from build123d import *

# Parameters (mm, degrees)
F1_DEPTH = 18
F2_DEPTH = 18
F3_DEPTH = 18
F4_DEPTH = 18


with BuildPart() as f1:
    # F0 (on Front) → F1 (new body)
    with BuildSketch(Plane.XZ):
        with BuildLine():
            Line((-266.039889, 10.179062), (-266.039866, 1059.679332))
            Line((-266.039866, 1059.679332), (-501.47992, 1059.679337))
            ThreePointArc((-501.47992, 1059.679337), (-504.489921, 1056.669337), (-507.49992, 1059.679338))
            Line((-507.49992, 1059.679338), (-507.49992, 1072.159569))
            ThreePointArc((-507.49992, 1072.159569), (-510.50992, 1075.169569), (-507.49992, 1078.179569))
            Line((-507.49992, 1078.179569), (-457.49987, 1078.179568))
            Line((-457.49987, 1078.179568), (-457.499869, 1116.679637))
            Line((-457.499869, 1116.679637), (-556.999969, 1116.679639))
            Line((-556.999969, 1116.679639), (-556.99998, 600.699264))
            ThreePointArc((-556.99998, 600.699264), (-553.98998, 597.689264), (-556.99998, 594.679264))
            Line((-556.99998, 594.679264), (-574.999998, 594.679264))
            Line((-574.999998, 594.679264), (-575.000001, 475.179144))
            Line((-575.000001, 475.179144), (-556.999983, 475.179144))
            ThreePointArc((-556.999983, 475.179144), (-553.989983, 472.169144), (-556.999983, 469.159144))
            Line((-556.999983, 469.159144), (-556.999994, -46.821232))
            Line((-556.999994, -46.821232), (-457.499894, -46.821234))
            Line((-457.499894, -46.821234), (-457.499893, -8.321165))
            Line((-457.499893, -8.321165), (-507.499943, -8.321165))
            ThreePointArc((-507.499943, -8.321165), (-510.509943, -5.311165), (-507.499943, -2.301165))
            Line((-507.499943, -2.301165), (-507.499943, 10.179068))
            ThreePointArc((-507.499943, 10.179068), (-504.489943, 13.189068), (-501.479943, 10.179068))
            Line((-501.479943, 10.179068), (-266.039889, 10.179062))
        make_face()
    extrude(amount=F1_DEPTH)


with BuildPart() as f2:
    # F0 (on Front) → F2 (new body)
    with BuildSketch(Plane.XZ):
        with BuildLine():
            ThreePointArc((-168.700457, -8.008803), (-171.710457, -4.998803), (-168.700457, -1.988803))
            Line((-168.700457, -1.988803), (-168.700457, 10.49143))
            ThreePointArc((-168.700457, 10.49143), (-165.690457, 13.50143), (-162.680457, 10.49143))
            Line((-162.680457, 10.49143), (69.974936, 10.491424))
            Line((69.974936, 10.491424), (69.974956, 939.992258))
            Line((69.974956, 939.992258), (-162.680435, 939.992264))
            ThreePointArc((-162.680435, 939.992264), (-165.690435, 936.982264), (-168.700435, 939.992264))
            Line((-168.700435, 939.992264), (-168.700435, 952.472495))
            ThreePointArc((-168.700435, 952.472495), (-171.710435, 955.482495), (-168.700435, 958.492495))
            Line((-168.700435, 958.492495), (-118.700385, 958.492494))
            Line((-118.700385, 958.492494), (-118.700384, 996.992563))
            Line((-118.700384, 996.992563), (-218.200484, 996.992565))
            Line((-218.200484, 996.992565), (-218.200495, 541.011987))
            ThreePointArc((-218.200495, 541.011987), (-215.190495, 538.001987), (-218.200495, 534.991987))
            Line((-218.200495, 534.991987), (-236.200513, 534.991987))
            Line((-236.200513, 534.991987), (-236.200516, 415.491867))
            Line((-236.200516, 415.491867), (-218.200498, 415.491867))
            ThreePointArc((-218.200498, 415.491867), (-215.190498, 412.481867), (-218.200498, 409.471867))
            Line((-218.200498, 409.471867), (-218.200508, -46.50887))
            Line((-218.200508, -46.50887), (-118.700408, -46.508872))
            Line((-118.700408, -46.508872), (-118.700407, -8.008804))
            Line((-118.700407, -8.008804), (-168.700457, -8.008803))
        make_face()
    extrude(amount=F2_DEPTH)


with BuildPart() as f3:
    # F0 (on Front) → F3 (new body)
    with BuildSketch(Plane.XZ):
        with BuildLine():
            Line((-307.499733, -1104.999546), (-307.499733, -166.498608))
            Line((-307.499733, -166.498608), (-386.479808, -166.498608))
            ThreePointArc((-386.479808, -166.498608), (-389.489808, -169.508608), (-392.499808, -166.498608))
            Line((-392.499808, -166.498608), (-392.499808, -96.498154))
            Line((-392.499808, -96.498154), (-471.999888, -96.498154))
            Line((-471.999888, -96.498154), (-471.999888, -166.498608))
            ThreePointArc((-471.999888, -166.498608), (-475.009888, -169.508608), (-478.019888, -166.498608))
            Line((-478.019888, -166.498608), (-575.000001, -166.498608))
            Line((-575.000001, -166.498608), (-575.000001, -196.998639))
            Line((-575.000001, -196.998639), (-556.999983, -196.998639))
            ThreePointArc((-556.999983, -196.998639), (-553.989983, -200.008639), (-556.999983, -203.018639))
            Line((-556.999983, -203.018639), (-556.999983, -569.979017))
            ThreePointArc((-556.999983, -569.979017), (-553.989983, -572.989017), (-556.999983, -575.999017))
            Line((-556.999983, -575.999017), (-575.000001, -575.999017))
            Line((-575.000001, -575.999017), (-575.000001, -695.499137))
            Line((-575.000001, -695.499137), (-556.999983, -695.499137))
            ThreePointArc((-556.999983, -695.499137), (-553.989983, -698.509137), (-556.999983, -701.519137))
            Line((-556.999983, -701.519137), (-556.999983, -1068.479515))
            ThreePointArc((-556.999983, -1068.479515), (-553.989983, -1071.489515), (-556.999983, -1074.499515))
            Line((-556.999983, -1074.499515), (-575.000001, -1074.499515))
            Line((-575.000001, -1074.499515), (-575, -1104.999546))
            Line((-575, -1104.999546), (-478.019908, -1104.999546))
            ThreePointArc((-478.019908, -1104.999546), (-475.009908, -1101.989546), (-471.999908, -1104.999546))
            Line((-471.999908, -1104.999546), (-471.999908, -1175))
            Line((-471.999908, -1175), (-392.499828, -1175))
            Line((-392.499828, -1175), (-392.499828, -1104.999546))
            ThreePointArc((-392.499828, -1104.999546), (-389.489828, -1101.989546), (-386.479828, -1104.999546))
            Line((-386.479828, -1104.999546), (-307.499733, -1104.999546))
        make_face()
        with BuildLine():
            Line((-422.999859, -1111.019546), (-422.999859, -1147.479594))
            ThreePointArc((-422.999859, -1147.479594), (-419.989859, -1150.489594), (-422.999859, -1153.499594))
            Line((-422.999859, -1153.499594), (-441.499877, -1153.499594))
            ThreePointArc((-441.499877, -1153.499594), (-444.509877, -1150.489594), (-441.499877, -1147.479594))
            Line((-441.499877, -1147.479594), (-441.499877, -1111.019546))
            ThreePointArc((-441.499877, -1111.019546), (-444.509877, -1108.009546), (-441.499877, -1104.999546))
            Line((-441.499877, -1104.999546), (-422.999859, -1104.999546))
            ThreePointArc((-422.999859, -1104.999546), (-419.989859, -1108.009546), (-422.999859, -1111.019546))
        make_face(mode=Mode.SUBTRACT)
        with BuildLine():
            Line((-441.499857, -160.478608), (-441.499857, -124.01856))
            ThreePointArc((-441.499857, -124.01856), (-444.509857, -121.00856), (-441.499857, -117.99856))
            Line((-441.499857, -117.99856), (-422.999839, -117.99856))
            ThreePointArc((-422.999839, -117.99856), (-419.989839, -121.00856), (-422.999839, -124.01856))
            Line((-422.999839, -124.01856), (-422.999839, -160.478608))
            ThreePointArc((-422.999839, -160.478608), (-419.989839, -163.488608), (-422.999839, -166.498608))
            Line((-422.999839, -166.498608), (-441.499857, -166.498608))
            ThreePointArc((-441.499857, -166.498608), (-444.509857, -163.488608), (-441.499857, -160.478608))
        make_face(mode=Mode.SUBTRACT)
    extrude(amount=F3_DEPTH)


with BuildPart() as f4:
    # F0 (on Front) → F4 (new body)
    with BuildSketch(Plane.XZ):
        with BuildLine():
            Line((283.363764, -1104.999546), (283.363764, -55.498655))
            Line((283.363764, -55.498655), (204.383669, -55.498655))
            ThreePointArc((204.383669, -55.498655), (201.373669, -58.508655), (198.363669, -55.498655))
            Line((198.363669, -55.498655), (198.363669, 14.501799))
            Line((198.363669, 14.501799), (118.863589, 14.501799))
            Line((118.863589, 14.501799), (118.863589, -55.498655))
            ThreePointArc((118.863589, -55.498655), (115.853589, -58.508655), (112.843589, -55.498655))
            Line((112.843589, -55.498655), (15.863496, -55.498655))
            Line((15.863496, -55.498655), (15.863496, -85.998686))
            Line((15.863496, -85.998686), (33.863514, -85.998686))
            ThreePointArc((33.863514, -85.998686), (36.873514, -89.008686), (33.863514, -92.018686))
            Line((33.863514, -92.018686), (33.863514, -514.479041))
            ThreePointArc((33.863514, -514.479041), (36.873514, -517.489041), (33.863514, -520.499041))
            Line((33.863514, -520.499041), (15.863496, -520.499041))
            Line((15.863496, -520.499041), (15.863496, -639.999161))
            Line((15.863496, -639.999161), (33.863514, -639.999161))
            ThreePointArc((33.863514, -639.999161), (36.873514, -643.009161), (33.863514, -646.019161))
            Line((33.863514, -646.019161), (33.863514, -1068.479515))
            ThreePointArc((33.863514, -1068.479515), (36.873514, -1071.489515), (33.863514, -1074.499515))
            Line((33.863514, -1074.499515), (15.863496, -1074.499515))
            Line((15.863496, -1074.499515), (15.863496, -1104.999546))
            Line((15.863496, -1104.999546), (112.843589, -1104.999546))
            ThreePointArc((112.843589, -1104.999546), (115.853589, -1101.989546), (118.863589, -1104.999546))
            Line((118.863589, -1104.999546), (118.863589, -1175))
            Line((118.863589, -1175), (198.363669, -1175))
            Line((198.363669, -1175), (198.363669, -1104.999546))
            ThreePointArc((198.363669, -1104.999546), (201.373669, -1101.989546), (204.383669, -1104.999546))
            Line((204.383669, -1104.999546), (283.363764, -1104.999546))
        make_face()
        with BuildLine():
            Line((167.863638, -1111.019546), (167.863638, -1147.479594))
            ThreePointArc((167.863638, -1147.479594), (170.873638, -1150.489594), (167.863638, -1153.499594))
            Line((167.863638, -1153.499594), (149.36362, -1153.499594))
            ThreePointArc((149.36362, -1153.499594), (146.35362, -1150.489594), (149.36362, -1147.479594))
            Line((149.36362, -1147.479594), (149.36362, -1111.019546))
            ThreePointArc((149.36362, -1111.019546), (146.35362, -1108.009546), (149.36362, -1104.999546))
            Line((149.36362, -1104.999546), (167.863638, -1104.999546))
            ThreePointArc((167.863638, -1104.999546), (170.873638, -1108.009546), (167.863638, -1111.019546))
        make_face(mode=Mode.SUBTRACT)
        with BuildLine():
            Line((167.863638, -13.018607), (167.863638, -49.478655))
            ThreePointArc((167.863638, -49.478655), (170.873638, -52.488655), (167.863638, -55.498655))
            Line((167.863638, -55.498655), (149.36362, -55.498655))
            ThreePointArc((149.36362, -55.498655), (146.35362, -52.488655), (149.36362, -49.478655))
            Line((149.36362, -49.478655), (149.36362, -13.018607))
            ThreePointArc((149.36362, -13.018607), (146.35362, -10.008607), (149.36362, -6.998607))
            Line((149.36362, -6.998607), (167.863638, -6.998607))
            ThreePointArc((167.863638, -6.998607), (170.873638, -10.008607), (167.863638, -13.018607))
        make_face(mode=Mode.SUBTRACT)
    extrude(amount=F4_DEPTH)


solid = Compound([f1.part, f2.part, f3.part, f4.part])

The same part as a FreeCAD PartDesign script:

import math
import FreeCAD as App
import Part
import Sketcher
from FreeCAD import Vector
Q = App.Units.Quantity

doc = App.newDocument("Part")
body = doc.addObject("PartDesign::Body", "Body")

# Sketch on XZ plane
sketch1 = doc.addObject("Sketcher::SketchObject", "Sketch")
body.addObject(sketch1)
sketch1.AttachmentSupport = (doc.XZ_Plane, [""])
sketch1.MapMode = "FlatFace"
sketch1.addGeometry([
    Part.LineSegment(Vector(-266.039889, 10.179062, 0), Vector(-266.039866, 1059.679332, 0)),  # 0
    Part.LineSegment(Vector(-266.039866, 1059.679332, 0), Vector(-501.47992, 1059.679337, 0)),  # 1
    Part.ArcOfCircle(Part.Circle(Vector(-504.48992, 1059.679337, 0), Vector(0, 0, 1), 3.01), math.radians(179.999981), math.radians(360)),  # 2
    Part.LineSegment(Vector(-507.49992, 1059.679338, 0), Vector(-507.49992, 1072.159569, 0)),  # 3
    Part.ArcOfCircle(Part.Circle(Vector(-507.49992, 1075.169569, 0), Vector(0, 0, 1), 3.01), math.radians(90), math.radians(270)),  # 4
    Part.LineSegment(Vector(-507.49992, 1078.179569, 0), Vector(-457.49987, 1078.179568, 0)),  # 5
    Part.LineSegment(Vector(-457.49987, 1078.179568, 0), Vector(-457.499869, 1116.679637, 0)),  # 6
    Part.LineSegment(Vector(-457.499869, 1116.679637, 0), Vector(-556.999969, 1116.679639, 0)),  # 7
    Part.LineSegment(Vector(-556.999969, 1116.679639, 0), Vector(-556.99998, 600.699264, 0)),  # 8
    Part.ArcOfCircle(Part.Circle(Vector(-556.99998, 597.689264, 0), Vector(0, 0, 1), 3.01), math.radians(-90), math.radians(90)),  # 9
    Part.LineSegment(Vector(-556.99998, 594.679264, 0), Vector(-574.999998, 594.679264, 0)),  # 10
    Part.LineSegment(Vector(-574.999998, 594.679264, 0), Vector(-575.000001, 475.179144, 0)),  # 11
    Part.LineSegment(Vector(-575.000001, 475.179144, 0), Vector(-556.999983, 475.179144, 0)),  # 12
    Part.ArcOfCircle(Part.Circle(Vector(-556.999983, 472.169144, 0), Vector(0, 0, 1), 3.01), math.radians(-90), math.radians(90)),  # 13
    Part.LineSegment(Vector(-556.999983, 469.159144, 0), Vector(-556.999994, -46.821232, 0)),  # 14
    Part.LineSegment(Vector(-556.999994, -46.821232, 0), Vector(-457.499894, -46.821234, 0)),  # 15
    Part.LineSegment(Vector(-457.499894, -46.821234, 0), Vector(-457.499893, -8.321165, 0)),  # 16
    Part.LineSegment(Vector(-457.499893, -8.321165, 0), Vector(-507.499943, -8.321165, 0)),  # 17
    Part.ArcOfCircle(Part.Circle(Vector(-507.499943, -5.311165, 0), Vector(0, 0, 1), 3.01), math.radians(90), math.radians(270)),  # 18
    Part.LineSegment(Vector(-507.499943, -2.301165, 0), Vector(-507.499943, 10.179068, 0)),  # 19
    Part.ArcOfCircle(Part.Circle(Vector(-504.489943, 10.179068, 0), Vector(0, 0, 1), 3.01), math.radians(0), math.radians(180)),  # 20
    Part.LineSegment(Vector(-501.479943, 10.179068, 0), Vector(-266.039889, 10.179062, 0)),  # 21
], False)
sketch1.addConstraint([
    Sketcher.Constraint("Coincident", 0, 2, 1, 1),
    Sketcher.Constraint("Coincident", 1, 2, 2, 2),
    Sketcher.Constraint("Coincident", 2, 1, 3, 1),
    Sketcher.Constraint("Coincident", 3, 2, 4, 2),
    Sketcher.Constraint("Coincident", 4, 1, 5, 1),
    Sketcher.Constraint("Coincident", 5, 2, 6, 1),
    Sketcher.Constraint("Coincident", 6, 2, 7, 1),
    Sketcher.Constraint("Coincident", 7, 2, 8, 1),
    Sketcher.Constraint("Coincident", 8, 2, 9, 2),
    Sketcher.Constraint("Coincident", 9, 1, 10, 1),
    Sketcher.Constraint("Coincident", 10, 2, 11, 1),
    Sketcher.Constraint("Coincident", 11, 2, 12, 1),
    Sketcher.Constraint("Coincident", 12, 2, 13, 2),
    Sketcher.Constraint("Coincident", 13, 1, 14, 1),
    Sketcher.Constraint("Coincident", 14, 2, 15, 1),
    Sketcher.Constraint("Coincident", 15, 2, 16, 1),
    Sketcher.Constraint("Coincident", 16, 2, 17, 1),
    Sketcher.Constraint("Coincident", 17, 2, 18, 2),
    Sketcher.Constraint("Coincident", 18, 1, 19, 1),
    Sketcher.Constraint("Coincident", 19, 2, 20, 2),
    Sketcher.Constraint("Coincident", 20, 1, 21, 1),
    Sketcher.Constraint("Coincident", 21, 2, 0, 1),
    Sketcher.Constraint("Vertical", 3),
    Sketcher.Constraint("Horizontal", 5),
    Sketcher.Constraint("Vertical", 6),
    Sketcher.Constraint("Horizontal", 7),
    Sketcher.Constraint("Horizontal", 10),
    Sketcher.Constraint("Horizontal", 12),
    Sketcher.Constraint("Horizontal", 15),
    Sketcher.Constraint("Vertical", 16),
    Sketcher.Constraint("Horizontal", 17),
    Sketcher.Constraint("Vertical", 19),
    Sketcher.Constraint("Radius", 2, Q("3.01 mm")),
    Sketcher.Constraint("Radius", 4, Q("3.01 mm")),
    Sketcher.Constraint("Radius", 9, Q("3.01 mm")),
    Sketcher.Constraint("Radius", 13, Q("3.01 mm")),
    Sketcher.Constraint("Radius", 18, Q("3.01 mm")),
    Sketcher.Constraint("Radius", 20, Q("3.01 mm")),
    Sketcher.Constraint("DistanceX", 10, 2, -1, 1, Q("574.999998 mm")),
    Sketcher.Constraint("DistanceX", 11, 2, -1, 1, Q("575.000001 mm")),
    Sketcher.Constraint("DistanceX", 4, 3, 2, 3, Q("3.01 mm")),
    Sketcher.Constraint("DistanceX", 18, 3, 20, 3, Q("3.01 mm")),
    Sketcher.Constraint("DistanceX", 4, 1, 2, 3, Q("3.01 mm")),
    Sketcher.Constraint("DistanceX", 17, 2, 20, 3, Q("3.01 mm")),
    Sketcher.Constraint("DistanceX", 7, 2, 7, 1, Q("99.5001 mm")),
    Sketcher.Constraint("DistanceX", 15, 1, 15, 2, Q("99.5001 mm")),
    Sketcher.Constraint("DistanceX", 5, 1, 5, 2, Q("50.00005 mm")),
    Sketcher.Constraint("DistanceX", 17, 2, 17, 1, Q("50.00005 mm")),
    Sketcher.Constraint("DistanceY", 3, 1, 3, 2, Q("12.480231 mm")),
    Sketcher.Constraint("DistanceY", 6, 1, 6, 2, Q("38.500069 mm")),
    Sketcher.Constraint("DistanceY", 16, 1, 16, 2, Q("38.500069 mm")),
    Sketcher.Constraint("DistanceY", 18, 3, 2, 3, Q("1064.990502 mm")),
    Sketcher.Constraint("DistanceY", 20, 3, 4, 3, Q("1064.990501 mm")),
    Sketcher.Constraint("DistanceY", 1, 2, 6, 2, Q("57.0003 mm")),
    Sketcher.Constraint("DistanceY", 2, 3, 7, 2, Q("57.000302 mm")),
    Sketcher.Constraint("Distance", 0, Q("1049.50027 mm")),
    Sketcher.Constraint("Distance", 11, Q("119.50012 mm")),
    Sketcher.Constraint("DistanceX", 10, 2, 10, 1, Q("18.000018 mm")),
    Sketcher.Constraint("DistanceX", 12, 1, 12, 2, Q("18.000018 mm")),
    Sketcher.Constraint("DistanceY", 19, 1, 19, 2, Q("12.480233 mm")),
    Sketcher.Constraint("DistanceX", 2, 3, -1, 1, Q("504.48992 mm")),
    Sketcher.Constraint("DistanceY", -1, 1, 4, 3, Q("1075.169569 mm")),
    Sketcher.Constraint("DistanceX", 9, 3, -1, 1, Q("556.99998 mm")),
    Sketcher.Constraint("DistanceY", -1, 1, 0, 2, Q("1059.679332 mm")),
    Sketcher.Constraint("DistanceX", 8, 2, -1, 1, Q("556.99998 mm")),
    Sketcher.Constraint("DistanceX", 21, 2, -1, 1, Q("266.039889 mm")),
    Sketcher.Constraint("DistanceX", 13, 3, 18, 3, Q("49.50004 mm")),
    Sketcher.Constraint("DistanceY", 18, 3, 13, 3, Q("477.480309 mm")),
    Sketcher.Constraint("DistanceX", 13, 1, 15, 2, Q("99.500089 mm")),
    Sketcher.Constraint("Distance", 1, Q("235.440054 mm")),
    Sketcher.Constraint("Distance", 21, Q("235.440054 mm")),
    Sketcher.Constraint("DistanceY", -1, 1, 20, 1, Q("10.179068 mm")),
])
pad1 = doc.addObject("PartDesign::Pad", "Pad")
body.addObject(pad1)
pad1.Profile = sketch1
pad1.Length = 18
body2 = doc.addObject("PartDesign::Body", "Body001")

# Sketch on XZ plane
sketch2 = doc.addObject("Sketcher::SketchObject", "Sketch001")
body2.addObject(sketch2)
sketch2.AttachmentSupport = (doc.getObject("XZ_Plane001"), [""])
sketch2.MapMode = "FlatFace"
sketch2.addGeometry([
    Part.ArcOfCircle(Part.Circle(Vector(-168.700457, -4.998803, 0), Vector(0, 0, 1), 3.01), math.radians(90), math.radians(270)),  # 0
    Part.LineSegment(Vector(-168.700457, -1.988803, 0), Vector(-168.700457, 10.49143, 0)),  # 1
    Part.ArcOfCircle(Part.Circle(Vector(-165.690457, 10.49143, 0), Vector(0, 0, 1), 3.01), math.radians(0), math.radians(180)),  # 2
    Part.LineSegment(Vector(-162.680457, 10.49143, 0), Vector(69.974936, 10.491424, 0)),  # 3
    Part.LineSegment(Vector(69.974936, 10.491424, 0), Vector(69.974956, 939.992258, 0)),  # 4
    Part.LineSegment(Vector(69.974956, 939.992258, 0), Vector(-162.680435, 939.992264, 0)),  # 5
    Part.ArcOfCircle(Part.Circle(Vector(-165.690435, 939.992264, 0), Vector(0, 0, 1), 3.01), math.radians(180), math.radians(360)),  # 6
    Part.LineSegment(Vector(-168.700435, 939.992264, 0), Vector(-168.700435, 952.472495, 0)),  # 7
    Part.ArcOfCircle(Part.Circle(Vector(-168.700435, 955.482495, 0), Vector(0, 0, 1), 3.01), math.radians(90), math.radians(270)),  # 8
    Part.LineSegment(Vector(-168.700435, 958.492495, 0), Vector(-118.700385, 958.492494, 0)),  # 9
    Part.LineSegment(Vector(-118.700385, 958.492494, 0), Vector(-118.700384, 996.992563, 0)),  # 10
    Part.LineSegment(Vector(-118.700384, 996.992563, 0), Vector(-218.200484, 996.992565, 0)),  # 11
    Part.LineSegment(Vector(-218.200484, 996.992565, 0), Vector(-218.200495, 541.011987, 0)),  # 12
    Part.ArcOfCircle(Part.Circle(Vector(-218.200495, 538.001987, 0), Vector(0, 0, 1), 3.01), math.radians(-90), math.radians(90)),  # 13
    Part.LineSegment(Vector(-218.200495, 534.991987, 0), Vector(-236.200513, 534.991987, 0)),  # 14
    Part.LineSegment(Vector(-236.200513, 534.991987, 0), Vector(-236.200516, 415.491867, 0)),  # 15
    Part.LineSegment(Vector(-236.200516, 415.491867, 0), Vector(-218.200498, 415.491867, 0)),  # 16
    Part.ArcOfCircle(Part.Circle(Vector(-218.200498, 412.481867, 0), Vector(0, 0, 1), 3.01), math.radians(-90), math.radians(90)),  # 17
    Part.LineSegment(Vector(-218.200498, 409.471867, 0), Vector(-218.200508, -46.50887, 0)),  # 18
    Part.LineSegment(Vector(-218.200508, -46.50887, 0), Vector(-118.700408, -46.508872, 0)),  # 19
    Part.LineSegment(Vector(-118.700408, -46.508872, 0), Vector(-118.700407, -8.008804, 0)),  # 20
    Part.LineSegment(Vector(-118.700407, -8.008804, 0), Vector(-168.700457, -8.008803, 0)),  # 21
], False)
sketch2.addConstraint([
    Sketcher.Constraint("Coincident", 0, 1, 1, 1),
    Sketcher.Constraint("Tangent", 1, 2, 2, 2),
    Sketcher.Constraint("Coincident", 2, 1, 3, 1),
    Sketcher.Constraint("Coincident", 3, 2, 4, 1),
    Sketcher.Constraint("Coincident", 4, 2, 5, 1),
    Sketcher.Constraint("Coincident", 5, 2, 6, 2),
    Sketcher.Constraint("Tangent", 6, 1, 7, 1),
    Sketcher.Constraint("Coincident", 7, 2, 8, 2),
    Sketcher.Constraint("Tangent", 8, 1, 9, 1),
    Sketcher.Constraint("Coincident", 9, 2, 10, 1),
    Sketcher.Constraint("Coincident", 10, 2, 11, 1),
    Sketcher.Constraint("Coincident", 11, 2, 12, 1),
    Sketcher.Constraint("Coincident", 12, 2, 13, 2),
    Sketcher.Constraint("Tangent", 13, 1, 14, 1),
    Sketcher.Constraint("Coincident", 14, 2, 15, 1),
    Sketcher.Constraint("Coincident", 15, 2, 16, 1),
    Sketcher.Constraint("Tangent", 16, 2, 17, 2),
    Sketcher.Constraint("Coincident", 17, 1, 18, 1),
    Sketcher.Constraint("Coincident", 18, 2, 19, 1),
    Sketcher.Constraint("Coincident", 19, 2, 20, 1),
    Sketcher.Constraint("Coincident", 20, 2, 21, 1),
    Sketcher.Constraint("Tangent", 21, 2, 0, 2),
    Sketcher.Constraint("Vertical", 1),
    Sketcher.Constraint("Vertical", 7),
    Sketcher.Constraint("Horizontal", 9),
    Sketcher.Constraint("Vertical", 10),
    Sketcher.Constraint("Horizontal", 11),
    Sketcher.Constraint("Horizontal", 14),
    Sketcher.Constraint("Horizontal", 16),
    Sketcher.Constraint("Horizontal", 19),
    Sketcher.Constraint("Vertical", 20),
    Sketcher.Constraint("Horizontal", 21),
    Sketcher.Constraint("Equal", 0, 2),
    Sketcher.Constraint("Equal", 2, 6),
    Sketcher.Constraint("Equal", 6, 8),
    Sketcher.Constraint("Equal", 8, 13),
    Sketcher.Constraint("Equal", 13, 17),
    Sketcher.Constraint("Perpendicular", 3, 4),
    Sketcher.Constraint("Perpendicular", 4, 5),
    Sketcher.Constraint("Perpendicular", 5, 12),
    Sketcher.Constraint("Parallel", 12, 15),
    Sketcher.Constraint("Parallel", 15, 18),
    Sketcher.Constraint("Horizontal", 1, 2, 2, 1),
    Sketcher.Constraint("Horizontal", 6, 3, 5, 2),
    Sketcher.Constraint("Vertical", 8, 3, 6, 1),
    Sketcher.Constraint("Vertical", 13, 3, 12, 2),
    Sketcher.Constraint("Vertical", 16, 2, 17, 1),
    Sketcher.Constraint("Vertical", 1, 2, 21, 2),
    Sketcher.Constraint("Equal", 14, 16),
    Sketcher.Constraint("Equal", 11, 19),
    Sketcher.Constraint("Equal", 9, 21),
    Sketcher.Constraint("Equal", 1, 7),
    Sketcher.Constraint("Equal", 10, 20),
    Sketcher.Constraint("Equal", 3, 5),
    Sketcher.Constraint("Radius", 0, Q("3.01 mm")),
    Sketcher.Constraint("DistanceX", 11, 2, 11, 1, Q("99.5001 mm")),
    Sketcher.Constraint("DistanceX", 9, 1, 9, 2, Q("50.00005 mm")),
    Sketcher.Constraint("DistanceX", 14, 2, 14, 1, Q("18.000018 mm")),
    Sketcher.Constraint("DistanceY", 7, 1, 7, 2, Q("12.480231 mm")),
    Sketcher.Constraint("DistanceY", 10, 1, 10, 2, Q("38.500069 mm")),
    Sketcher.Constraint("DistanceX", 17, 3, -1, 1, Q("218.200498 mm")),
    Sketcher.Constraint("Distance", 5, Q("232.655391 mm")),
    Sketcher.Constraint("Distance", 12, Q("455.980578 mm")),
    Sketcher.Constraint("Distance", 15, Q("119.50012 mm")),
    Sketcher.Constraint("DistanceY", -1, 1, 2, 3, Q("10.49143 mm")),
    Sketcher.Constraint("DistanceY", -1, 1, 4, 2, Q("939.992258 mm")),
])
pad2 = doc.addObject("PartDesign::Pad", "Pad001")
body2.addObject(pad2)
pad2.Profile = sketch2
pad2.Length = 18
body3 = doc.addObject("PartDesign::Body", "Body002")

# Sketch on XZ plane
sketch3 = doc.addObject("Sketcher::SketchObject", "Sketch002")
body3.addObject(sketch3)
sketch3.AttachmentSupport = (doc.getObject("XZ_Plane002"), [""])
sketch3.MapMode = "FlatFace"
sketch3.addGeometry([
    Part.LineSegment(Vector(-307.499733, -1104.999546, 0), Vector(-307.499733, -166.498608, 0)),  # 0
    Part.LineSegment(Vector(-307.499733, -166.498608, 0), Vector(-386.479808, -166.498608, 0)),  # 1
    Part.ArcOfCircle(Part.Circle(Vector(-389.489808, -166.498608, 0), Vector(0, 0, 1), 3.01), math.radians(180), math.radians(360)),  # 2
    Part.LineSegment(Vector(-392.499808, -166.498608, 0), Vector(-392.499808, -96.498154, 0)),  # 3
    Part.LineSegment(Vector(-392.499808, -96.498154, 0), Vector(-471.999888, -96.498154, 0)),  # 4
    Part.LineSegment(Vector(-471.999888, -96.498154, 0), Vector(-471.999888, -166.498608, 0)),  # 5
    Part.ArcOfCircle(Part.Circle(Vector(-475.009888, -166.498608, 0), Vector(0, 0, 1), 3.01), math.radians(180), math.radians(360)),  # 6
    Part.LineSegment(Vector(-478.019888, -166.498608, 0), Vector(-575.000001, -166.498608, 0)),  # 7
    Part.LineSegment(Vector(-575.000001, -166.498608, 0), Vector(-575.000001, -196.998639, 0)),  # 8
    Part.LineSegment(Vector(-575.000001, -196.998639, 0), Vector(-556.999983, -196.998639, 0)),  # 9
    Part.ArcOfCircle(Part.Circle(Vector(-556.999983, -200.008639, 0), Vector(0, 0, 1), 3.01), math.radians(-90), math.radians(90)),  # 10
    Part.LineSegment(Vector(-556.999983, -203.018639, 0), Vector(-556.999983, -569.979017, 0)),  # 11
    Part.ArcOfCircle(Part.Circle(Vector(-556.999983, -572.989017, 0), Vector(0, 0, 1), 3.01), math.radians(-90), math.radians(90)),  # 12
    Part.LineSegment(Vector(-556.999983, -575.999017, 0), Vector(-575.000001, -575.999017, 0)),  # 13
    Part.LineSegment(Vector(-575.000001, -575.999017, 0), Vector(-575.000001, -695.499137, 0)),  # 14
    Part.LineSegment(Vector(-575.000001, -695.499137, 0), Vector(-556.999983, -695.499137, 0)),  # 15
    Part.ArcOfCircle(Part.Circle(Vector(-556.999983, -698.509137, 0), Vector(0, 0, 1), 3.01), math.radians(-90), math.radians(90)),  # 16
    Part.LineSegment(Vector(-556.999983, -701.519137, 0), Vector(-556.999983, -1068.479515, 0)),  # 17
    Part.ArcOfCircle(Part.Circle(Vector(-556.999983, -1071.489515, 0), Vector(0, 0, 1), 3.01), math.radians(-90), math.radians(90)),  # 18
    Part.LineSegment(Vector(-556.999983, -1074.499515, 0), Vector(-575.000001, -1074.499515, 0)),  # 19
    Part.LineSegment(Vector(-575.000001, -1074.499515, 0), Vector(-575, -1104.999546, 0)),  # 20
    Part.LineSegment(Vector(-575, -1104.999546, 0), Vector(-478.019908, -1104.999546, 0)),  # 21
    Part.ArcOfCircle(Part.Circle(Vector(-475.009908, -1104.999546, 0), Vector(0, 0, 1), 3.01), math.radians(0), math.radians(180)),  # 22
    Part.LineSegment(Vector(-471.999908, -1104.999546, 0), Vector(-471.999908, -1175, 0)),  # 23
    Part.LineSegment(Vector(-471.999908, -1175, 0), Vector(-392.499828, -1175, 0)),  # 24
    Part.LineSegment(Vector(-392.499828, -1175, 0), Vector(-392.499828, -1104.999546, 0)),  # 25
    Part.ArcOfCircle(Part.Circle(Vector(-389.489828, -1104.999546, 0), Vector(0, 0, 1), 3.01), math.radians(0), math.radians(180)),  # 26
    Part.LineSegment(Vector(-386.479828, -1104.999546, 0), Vector(-307.499733, -1104.999546, 0)),  # 27
    Part.ArcOfCircle(Part.Circle(Vector(-422.999859, -1108.009546, 0), Vector(0, 0, 1), 3.01), math.radians(-90), math.radians(90)),  # 28
    Part.LineSegment(Vector(-422.999859, -1111.019546, 0), Vector(-422.999859, -1147.479594, 0)),  # 29
    Part.ArcOfCircle(Part.Circle(Vector(-422.999859, -1150.489594, 0), Vector(0, 0, 1), 3.01), math.radians(-90), math.radians(90)),  # 30
    Part.LineSegment(Vector(-422.999859, -1153.499594, 0), Vector(-441.499877, -1153.499594, 0)),  # 31
    Part.ArcOfCircle(Part.Circle(Vector(-441.499877, -1150.489594, 0), Vector(0, 0, 1), 3.01), math.radians(90), math.radians(270)),  # 32
    Part.LineSegment(Vector(-441.499877, -1147.479594, 0), Vector(-441.499877, -1111.019546, 0)),  # 33
    Part.ArcOfCircle(Part.Circle(Vector(-441.499877, -1108.009546, 0), Vector(0, 0, 1), 3.01), math.radians(90), math.radians(270)),  # 34
    Part.LineSegment(Vector(-441.499877, -1104.999546, 0), Vector(-422.999859, -1104.999546, 0)),  # 35
    Part.ArcOfCircle(Part.Circle(Vector(-441.499857, -163.488608, 0), Vector(0, 0, 1), 3.01), math.radians(90), math.radians(270)),  # 36
    Part.LineSegment(Vector(-441.499857, -160.478608, 0), Vector(-441.499857, -124.01856, 0)),  # 37
    Part.ArcOfCircle(Part.Circle(Vector(-441.499857, -121.00856, 0), Vector(0, 0, 1), 3.01), math.radians(90), math.radians(270)),  # 38
    Part.LineSegment(Vector(-441.499857, -117.99856, 0), Vector(-422.999839, -117.99856, 0)),  # 39
    Part.ArcOfCircle(Part.Circle(Vector(-422.999839, -121.00856, 0), Vector(0, 0, 1), 3.01), math.radians(-90), math.radians(90)),  # 40
    Part.LineSegment(Vector(-422.999839, -124.01856, 0), Vector(-422.999839, -160.478608, 0)),  # 41
    Part.ArcOfCircle(Part.Circle(Vector(-422.999839, -163.488608, 0), Vector(0, 0, 1), 3.01), math.radians(-90), math.radians(90)),  # 42
    Part.LineSegment(Vector(-422.999839, -166.498608, 0), Vector(-441.499857, -166.498608, 0)),  # 43
], False)
sketch3.addConstraint([
    Sketcher.Constraint("Coincident", 0, 2, 1, 1),
    Sketcher.Constraint("Coincident", 1, 2, 2, 2),
    Sketcher.Constraint("Tangent", 2, 1, 3, 1),
    Sketcher.Constraint("Coincident", 3, 2, 4, 1),
    Sketcher.Constraint("Coincident", 4, 2, 5, 1),
    Sketcher.Constraint("Tangent", 5, 2, 6, 2),
    Sketcher.Constraint("Coincident", 6, 1, 7, 1),
    Sketcher.Constraint("Coincident", 7, 2, 8, 1),
    Sketcher.Constraint("Coincident", 8, 2, 9, 1),
    Sketcher.Constraint("Tangent", 9, 2, 10, 2),
    Sketcher.Constraint("Coincident", 10, 1, 11, 1),
    Sketcher.Constraint("Coincident", 11, 2, 12, 2),
    Sketcher.Constraint("Tangent", 12, 1, 13, 1),
    Sketcher.Constraint("Coincident", 13, 2, 14, 1),
    Sketcher.Constraint("Coincident", 14, 2, 15, 1),
    Sketcher.Constraint("Tangent", 15, 2, 16, 2),
    Sketcher.Constraint("Coincident", 16, 1, 17, 1),
    Sketcher.Constraint("Coincident", 17, 2, 18, 2),
    Sketcher.Constraint("Tangent", 18, 1, 19, 1),
    Sketcher.Constraint("Coincident", 19, 2, 20, 1),
    Sketcher.Constraint("Coincident", 20, 2, 21, 1),
    Sketcher.Constraint("Coincident", 21, 2, 22, 2),
    Sketcher.Constraint("Tangent", 22, 1, 23, 1),
    Sketcher.Constraint("Coincident", 23, 2, 24, 1),
    Sketcher.Constraint("Coincident", 24, 2, 25, 1),
    Sketcher.Constraint("Tangent", 25, 2, 26, 2),
    Sketcher.Constraint("Coincident", 26, 1, 27, 1),
    Sketcher.Constraint("Coincident", 27, 2, 0, 1),
    Sketcher.Constraint("Coincident", 28, 1, 29, 1),
    Sketcher.Constraint("Coincident", 29, 2, 30, 2),
    Sketcher.Constraint("Tangent", 30, 1, 31, 1),
    Sketcher.Constraint("Tangent", 31, 2, 32, 2),
    Sketcher.Constraint("Coincident", 32, 1, 33, 1),
    Sketcher.Constraint("Coincident", 33, 2, 34, 2),
    Sketcher.Constraint("Tangent", 34, 1, 35, 1),
    Sketcher.Constraint("Tangent", 35, 2, 28, 2),
    Sketcher.Constraint("Coincident", 36, 1, 37, 1),
    Sketcher.Constraint("Coincident", 37, 2, 38, 2),
    Sketcher.Constraint("Tangent", 38, 1, 39, 1),
    Sketcher.Constraint("Tangent", 39, 2, 40, 2),
    Sketcher.Constraint("Coincident", 40, 1, 41, 1),
    Sketcher.Constraint("Coincident", 41, 2, 42, 2),
    Sketcher.Constraint("Tangent", 42, 1, 43, 1),
    Sketcher.Constraint("Tangent", 43, 2, 36, 2),
    Sketcher.Constraint("Vertical", 0),
    Sketcher.Constraint("Horizontal", 1),
    Sketcher.Constraint("Vertical", 3),
    Sketcher.Constraint("Horizontal", 4),
    Sketcher.Constraint("Vertical", 5),
    Sketcher.Constraint("Horizontal", 7),
    Sketcher.Constraint("Vertical", 8),
    Sketcher.Constraint("Horizontal", 9),
    Sketcher.Constraint("Vertical", 11),
    Sketcher.Constraint("Horizontal", 13),
    Sketcher.Constraint("Vertical", 14),
    Sketcher.Constraint("Horizontal", 15),
    Sketcher.Constraint("Vertical", 17),
    Sketcher.Constraint("Horizontal", 19),
    Sketcher.Constraint("Vertical", 20),
    Sketcher.Constraint("Horizontal", 21),
    Sketcher.Constraint("Vertical", 23),
    Sketcher.Constraint("Horizontal", 24),
    Sketcher.Constraint("Vertical", 25),
    Sketcher.Constraint("Horizontal", 27),
    Sketcher.Constraint("Vertical", 29),
    Sketcher.Constraint("Horizontal", 31),
    Sketcher.Constraint("Vertical", 33),
    Sketcher.Constraint("Horizontal", 35),
    Sketcher.Constraint("Vertical", 37),
    Sketcher.Constraint("Horizontal", 39),
    Sketcher.Constraint("Vertical", 41),
    Sketcher.Constraint("Horizontal", 43),
    Sketcher.Constraint("Equal", 2, 6),
    Sketcher.Constraint("Equal", 6, 10),
    Sketcher.Constraint("Equal", 10, 12),
    Sketcher.Constraint("Equal", 12, 16),
    Sketcher.Constraint("Equal", 16, 18),
    Sketcher.Constraint("Equal", 18, 22),
    Sketcher.Constraint("Equal", 22, 26),
    Sketcher.Constraint("Equal", 26, 28),
    Sketcher.Constraint("Equal", 28, 30),
    Sketcher.Constraint("Equal", 30, 32),
    Sketcher.Constraint("Equal", 32, 34),
    Sketcher.Constraint("Equal", 34, 36),
    Sketcher.Constraint("Equal", 36, 38),
    Sketcher.Constraint("Equal", 38, 40),
    Sketcher.Constraint("Equal", 40, 42),
    Sketcher.Constraint("Horizontal", 2, 3, 6, 3),
    Sketcher.Constraint("Horizontal", 22, 3, 26, 3),
    Sketcher.Constraint("Horizontal", 6, 3, 0, 2),
    Sketcher.Constraint("Horizontal", 5, 2, 6, 1),
    Sketcher.Constraint("Horizontal", 26, 3, 20, 2),
    Sketcher.Constraint("Horizontal", 25, 2, 26, 1),
    Sketcher.Constraint("Horizontal", 27, 2, 34, 1),
    Sketcher.Constraint("Horizontal", 7, 2, 42, 1),
    Sketcher.Constraint("Vertical", 10, 3, 12, 3),
    Sketcher.Constraint("Vertical", 12, 3, 16, 3),
    Sketcher.Constraint("Vertical", 16, 3, 18, 3),
    Sketcher.Constraint("Vertical", 28, 3, 30, 3),
    Sketcher.Constraint("Vertical", 32, 3, 34, 3),
    Sketcher.Constraint("Vertical", 36, 3, 38, 3),
    Sketcher.Constraint("Vertical", 40, 3, 42, 3),
    Sketcher.Constraint("Vertical", 9, 2, 10, 1),
    Sketcher.Constraint("Vertical", 8, 2, 13, 2),
    Sketcher.Constraint("Vertical", 15, 2, 16, 1),
    Sketcher.Constraint("Vertical", 14, 2, 19, 2),
    Sketcher.Constraint("Vertical", 30, 3, 28, 1),
    Sketcher.Constraint("Vertical", 31, 2, 32, 1),
    Sketcher.Constraint("Vertical", 38, 3, 36, 1),
    Sketcher.Constraint("Vertical", 39, 2, 40, 1),
    Sketcher.Constraint("Equal", 4, 24),
    Sketcher.Constraint("Equal", 35, 39),
    Sketcher.Constraint("Equal", 11, 17),
    Sketcher.Constraint("Equal", 8, 20),
    Sketcher.Constraint("Equal", 5, 23),
    Sketcher.Constraint("Equal", 33, 37),
    Sketcher.Constraint("Radius", 2, Q("3.01 mm")),
    Sketcher.Constraint("DistanceX", 7, 2, -1, 1, Q("575.000001 mm")),
    Sketcher.Constraint("DistanceY", 23, 2, -1, 1, Q("1175 mm")),
    Sketcher.Constraint("DistanceX", 4, 2, 4, 1, Q("79.50008 mm")),
    Sketcher.Constraint("DistanceX", 31, 2, 31, 1, Q("18.500018 mm")),
    Sketcher.Constraint("DistanceY", 0, 1, 0, 2, Q("938.500938 mm")),
    Sketcher.Constraint("DistanceY", 8, 2, 8, 1, Q("30.500031 mm")),
    Sketcher.Constraint("DistanceY", 11, 2, 11, 1, Q("366.960378 mm")),
    Sketcher.Constraint("DistanceY", 37, 1, 37, 2, Q("36.460048 mm")),
    Sketcher.Constraint("DistanceX", 1, 2, 1, 1, Q("78.980075 mm")),
    Sketcher.Constraint("DistanceX", 7, 2, 7, 1, Q("96.980113 mm")),
    Sketcher.Constraint("DistanceX", 9, 1, 9, 2, Q("18.000018 mm")),
    Sketcher.Constraint("DistanceX", 21, 1, 21, 2, Q("96.980092 mm")),
    Sketcher.Constraint("DistanceY", 3, 1, 3, 2, Q("70.000454 mm")),
    Sketcher.Constraint("DistanceX", 28, 3, -1, 1, Q("422.999859 mm")),
    Sketcher.Constraint("DistanceX", 40, 3, -1, 1, Q("422.999839 mm")),
])
pad3 = doc.addObject("PartDesign::Pad", "Pad002")
body3.addObject(pad3)
pad3.Profile = sketch3
pad3.Length = 18
body4 = doc.addObject("PartDesign::Body", "Body003")

# Sketch on XZ plane
sketch4 = doc.addObject("Sketcher::SketchObject", "Sketch003")
body4.addObject(sketch4)
sketch4.AttachmentSupport = (doc.getObject("XZ_Plane003"), [""])
sketch4.MapMode = "FlatFace"
sketch4.addGeometry([
    Part.LineSegment(Vector(283.363764, -1104.999546, 0), Vector(283.363764, -55.498655, 0)),  # 0
    Part.LineSegment(Vector(283.363764, -55.498655, 0), Vector(204.383669, -55.498655, 0)),  # 1
    Part.ArcOfCircle(Part.Circle(Vector(201.373669, -55.498655, 0), Vector(0, 0, 1), 3.01), math.radians(180), math.radians(360)),  # 2
    Part.LineSegment(Vector(198.363669, -55.498655, 0), Vector(198.363669, 14.501799, 0)),  # 3
    Part.LineSegment(Vector(198.363669, 14.501799, 0), Vector(118.863589, 14.501799, 0)),  # 4
    Part.LineSegment(Vector(118.863589, 14.501799, 0), Vector(118.863589, -55.498655, 0)),  # 5
    Part.ArcOfCircle(Part.Circle(Vector(115.853589, -55.498655, 0), Vector(0, 0, 1), 3.01), math.radians(180), math.radians(360)),  # 6
    Part.LineSegment(Vector(112.843589, -55.498655, 0), Vector(15.863496, -55.498655, 0)),  # 7
    Part.LineSegment(Vector(15.863496, -55.498655, 0), Vector(15.863496, -85.998686, 0)),  # 8
    Part.LineSegment(Vector(15.863496, -85.998686, 0), Vector(33.863514, -85.998686, 0)),  # 9
    Part.ArcOfCircle(Part.Circle(Vector(33.863514, -89.008686, 0), Vector(0, 0, 1), 3.01), math.radians(-90), math.radians(90)),  # 10
    Part.LineSegment(Vector(33.863514, -92.018686, 0), Vector(33.863514, -514.479041, 0)),  # 11
    Part.ArcOfCircle(Part.Circle(Vector(33.863514, -517.489041, 0), Vector(0, 0, 1), 3.01), math.radians(-90), math.radians(90)),  # 12
    Part.LineSegment(Vector(33.863514, -520.499041, 0), Vector(15.863496, -520.499041, 0)),  # 13
    Part.LineSegment(Vector(15.863496, -520.499041, 0), Vector(15.863496, -639.999161, 0)),  # 14
    Part.LineSegment(Vector(15.863496, -639.999161, 0), Vector(33.863514, -639.999161, 0)),  # 15
    Part.ArcOfCircle(Part.Circle(Vector(33.863514, -643.009161, 0), Vector(0, 0, 1), 3.01), math.radians(-90), math.radians(90)),  # 16
    Part.LineSegment(Vector(33.863514, -646.019161, 0), Vector(33.863514, -1068.479515, 0)),  # 17
    Part.ArcOfCircle(Part.Circle(Vector(33.863514, -1071.489515, 0), Vector(0, 0, 1), 3.01), math.radians(-90), math.radians(90)),  # 18
    Part.LineSegment(Vector(33.863514, -1074.499515, 0), Vector(15.863496, -1074.499515, 0)),  # 19
    Part.LineSegment(Vector(15.863496, -1074.499515, 0), Vector(15.863496, -1104.999546, 0)),  # 20
    Part.LineSegment(Vector(15.863496, -1104.999546, 0), Vector(112.843589, -1104.999546, 0)),  # 21
    Part.ArcOfCircle(Part.Circle(Vector(115.853589, -1104.999546, 0), Vector(0, 0, 1), 3.01), math.radians(0), math.radians(180)),  # 22
    Part.LineSegment(Vector(118.863589, -1104.999546, 0), Vector(118.863589, -1175, 0)),  # 23
    Part.LineSegment(Vector(118.863589, -1175, 0), Vector(198.363669, -1175, 0)),  # 24
    Part.LineSegment(Vector(198.363669, -1175, 0), Vector(198.363669, -1104.999546, 0)),  # 25
    Part.ArcOfCircle(Part.Circle(Vector(201.373669, -1104.999546, 0), Vector(0, 0, 1), 3.01), math.radians(0), math.radians(180)),  # 26
    Part.LineSegment(Vector(204.383669, -1104.999546, 0), Vector(283.363764, -1104.999546, 0)),  # 27
    Part.ArcOfCircle(Part.Circle(Vector(167.863638, -1108.009546, 0), Vector(0, 0, 1), 3.01), math.radians(-90), math.radians(90)),  # 28
    Part.LineSegment(Vector(167.863638, -1111.019546, 0), Vector(167.863638, -1147.479594, 0)),  # 29
    Part.ArcOfCircle(Part.Circle(Vector(167.863638, -1150.489594, 0), Vector(0, 0, 1), 3.01), math.radians(-90), math.radians(90)),  # 30
    Part.LineSegment(Vector(167.863638, -1153.499594, 0), Vector(149.36362, -1153.499594, 0)),  # 31
    Part.ArcOfCircle(Part.Circle(Vector(149.36362, -1150.489594, 0), Vector(0, 0, 1), 3.01), math.radians(90), math.radians(270)),  # 32
    Part.LineSegment(Vector(149.36362, -1147.479594, 0), Vector(149.36362, -1111.019546, 0)),  # 33
    Part.ArcOfCircle(Part.Circle(Vector(149.36362, -1108.009546, 0), Vector(0, 0, 1), 3.01), math.radians(90), math.radians(270)),  # 34
    Part.LineSegment(Vector(149.36362, -1104.999546, 0), Vector(167.863638, -1104.999546, 0)),  # 35
    Part.ArcOfCircle(Part.Circle(Vector(167.863638, -10.008607, 0), Vector(0, 0, 1), 3.01), math.radians(-90), math.radians(90)),  # 36
    Part.LineSegment(Vector(167.863638, -13.018607, 0), Vector(167.863638, -49.478655, 0)),  # 37
    Part.ArcOfCircle(Part.Circle(Vector(167.863638, -52.488655, 0), Vector(0, 0, 1), 3.01), math.radians(-90), math.radians(90)),  # 38
    Part.LineSegment(Vector(167.863638, -55.498655, 0), Vector(149.36362, -55.498655, 0)),  # 39
    Part.ArcOfCircle(Part.Circle(Vector(149.36362, -52.488655, 0), Vector(0, 0, 1), 3.01), math.radians(90), math.radians(270)),  # 40
    Part.LineSegment(Vector(149.36362, -49.478655, 0), Vector(149.36362, -13.018607, 0)),  # 41
    Part.ArcOfCircle(Part.Circle(Vector(149.36362, -10.008607, 0), Vector(0, 0, 1), 3.01), math.radians(90), math.radians(270)),  # 42
    Part.LineSegment(Vector(149.36362, -6.998607, 0), Vector(167.863638, -6.998607, 0)),  # 43
], False)
sketch4.addConstraint([
    Sketcher.Constraint("Coincident", 0, 2, 1, 1),
    Sketcher.Constraint("Coincident", 1, 2, 2, 2),
    Sketcher.Constraint("Tangent", 2, 1, 3, 1),
    Sketcher.Constraint("Coincident", 3, 2, 4, 1),
    Sketcher.Constraint("Coincident", 4, 2, 5, 1),
    Sketcher.Constraint("Tangent", 5, 2, 6, 2),
    Sketcher.Constraint("Coincident", 6, 1, 7, 1),
    Sketcher.Constraint("Coincident", 7, 2, 8, 1),
    Sketcher.Constraint("Coincident", 8, 2, 9, 1),
    Sketcher.Constraint("Tangent", 9, 2, 10, 2),
    Sketcher.Constraint("Coincident", 10, 1, 11, 1),
    Sketcher.Constraint("Coincident", 11, 2, 12, 2),
    Sketcher.Constraint("Tangent", 12, 1, 13, 1),
    Sketcher.Constraint("Coincident", 13, 2, 14, 1),
    Sketcher.Constraint("Coincident", 14, 2, 15, 1),
    Sketcher.Constraint("Tangent", 15, 2, 16, 2),
    Sketcher.Constraint("Coincident", 16, 1, 17, 1),
    Sketcher.Constraint("Coincident", 17, 2, 18, 2),
    Sketcher.Constraint("Tangent", 18, 1, 19, 1),
    Sketcher.Constraint("Coincident", 19, 2, 20, 1),
    Sketcher.Constraint("Coincident", 20, 2, 21, 1),
    Sketcher.Constraint("Coincident", 21, 2, 22, 2),
    Sketcher.Constraint("Tangent", 22, 1, 23, 1),
    Sketcher.Constraint("Coincident", 23, 2, 24, 1),
    Sketcher.Constraint("Coincident", 24, 2, 25, 1),
    Sketcher.Constraint("Tangent", 25, 2, 26, 2),
    Sketcher.Constraint("Coincident", 26, 1, 27, 1),
    Sketcher.Constraint("Coincident", 27, 2, 0, 1),
    Sketcher.Constraint("Coincident", 28, 1, 29, 1),
    Sketcher.Constraint("Coincident", 29, 2, 30, 2),
    Sketcher.Constraint("Tangent", 30, 1, 31, 1),
    Sketcher.Constraint("Tangent", 31, 2, 32, 2),
    Sketcher.Constraint("Coincident", 32, 1, 33, 1),
    Sketcher.Constraint("Coincident", 33, 2, 34, 2),
    Sketcher.Constraint("Tangent", 34, 1, 35, 1),
    Sketcher.Constraint("Tangent", 35, 2, 28, 2),
    Sketcher.Constraint("Coincident", 36, 1, 37, 1),
    Sketcher.Constraint("Coincident", 37, 2, 38, 2),
    Sketcher.Constraint("Tangent", 38, 1, 39, 1),
    Sketcher.Constraint("Tangent", 39, 2, 40, 2),
    Sketcher.Constraint("Coincident", 40, 1, 41, 1),
    Sketcher.Constraint("Coincident", 41, 2, 42, 2),
    Sketcher.Constraint("Tangent", 42, 1, 43, 1),
    Sketcher.Constraint("Tangent", 43, 2, 36, 2),
    Sketcher.Constraint("Vertical", 0),
    Sketcher.Constraint("Horizontal", 1),
    Sketcher.Constraint("Vertical", 3),
    Sketcher.Constraint("Horizontal", 4),
    Sketcher.Constraint("Vertical", 5),
    Sketcher.Constraint("Horizontal", 7),
    Sketcher.Constraint("Vertical", 8),
    Sketcher.Constraint("Horizontal", 9),
    Sketcher.Constraint("Vertical", 11),
    Sketcher.Constraint("Horizontal", 13),
    Sketcher.Constraint("Vertical", 14),
    Sketcher.Constraint("Horizontal", 15),
    Sketcher.Constraint("Vertical", 17),
    Sketcher.Constraint("Horizontal", 19),
    Sketcher.Constraint("Vertical", 20),
    Sketcher.Constraint("Horizontal", 21),
    Sketcher.Constraint("Vertical", 23),
    Sketcher.Constraint("Horizontal", 24),
    Sketcher.Constraint("Vertical", 25),
    Sketcher.Constraint("Horizontal", 27),
    Sketcher.Constraint("Vertical", 29),
    Sketcher.Constraint("Horizontal", 31),
    Sketcher.Constraint("Vertical", 33),
    Sketcher.Constraint("Horizontal", 35),
    Sketcher.Constraint("Vertical", 37),
    Sketcher.Constraint("Horizontal", 39),
    Sketcher.Constraint("Vertical", 41),
    Sketcher.Constraint("Horizontal", 43),
    Sketcher.Constraint("Equal", 2, 6),
    Sketcher.Constraint("Equal", 6, 10),
    Sketcher.Constraint("Equal", 10, 12),
    Sketcher.Constraint("Equal", 12, 16),
    Sketcher.Constraint("Equal", 16, 18),
    Sketcher.Constraint("Equal", 18, 22),
    Sketcher.Constraint("Equal", 22, 26),
    Sketcher.Constraint("Equal", 26, 28),
    Sketcher.Constraint("Equal", 28, 30),
    Sketcher.Constraint("Equal", 30, 32),
    Sketcher.Constraint("Equal", 32, 34),
    Sketcher.Constraint("Equal", 34, 36),
    Sketcher.Constraint("Equal", 36, 38),
    Sketcher.Constraint("Equal", 38, 40),
    Sketcher.Constraint("Equal", 40, 42),
    Sketcher.Constraint("Horizontal", 2, 3, 6, 3),
    Sketcher.Constraint("Horizontal", 22, 3, 26, 3),
    Sketcher.Constraint("Horizontal", 6, 3, 0, 2),
    Sketcher.Constraint("Horizontal", 5, 2, 6, 1),
    Sketcher.Constraint("Horizontal", 26, 3, 20, 2),
    Sketcher.Constraint("Horizontal", 25, 2, 26, 1),
    Sketcher.Constraint("Horizontal", 27, 2, 34, 1),
    Sketcher.Constraint("Horizontal", 7, 2, 38, 1),
    Sketcher.Constraint("Vertical", 10, 3, 12, 3),
    Sketcher.Constraint("Vertical", 12, 3, 16, 3),
    Sketcher.Constraint("Vertical", 16, 3, 18, 3),
    Sketcher.Constraint("Vertical", 6, 3, 22, 3),
    Sketcher.Constraint("Vertical", 2, 3, 26, 3),
    Sketcher.Constraint("Vertical", 28, 3, 30, 3),
    Sketcher.Constraint("Vertical", 32, 3, 34, 3),
    Sketcher.Constraint("Vertical", 30, 3, 36, 3),
    Sketcher.Constraint("Vertical", 36, 3, 38, 3),
    Sketcher.Constraint("Vertical", 34, 3, 40, 3),
    Sketcher.Constraint("Vertical", 40, 3, 42, 3),
    Sketcher.Constraint("Vertical", 9, 2, 10, 1),
    Sketcher.Constraint("Vertical", 8, 2, 13, 2),
    Sketcher.Constraint("Vertical", 15, 2, 16, 1),
    Sketcher.Constraint("Vertical", 14, 2, 19, 2),
    Sketcher.Constraint("Vertical", 38, 3, 28, 1),
    Sketcher.Constraint("Vertical", 31, 2, 32, 1),
    Sketcher.Constraint("Vertical", 35, 2, 36, 1),
    Sketcher.Constraint("Vertical", 39, 2, 40, 1),
    Sketcher.Constraint("Equal", 11, 17),
    Sketcher.Constraint("Equal", 8, 20),
    Sketcher.Constraint("Equal", 5, 23),
    Sketcher.Constraint("Equal", 33, 37),
    Sketcher.Constraint("Radius", 2, Q("3.01 mm")),
    Sketcher.Constraint("DistanceY", 23, 2, -1, 1, Q("1175 mm")),
    Sketcher.Constraint("DistanceX", 4, 2, 4, 1, Q("79.50008 mm")),
    Sketcher.Constraint("DistanceX", 9, 1, 9, 2, Q("18.000018 mm")),
    Sketcher.Constraint("DistanceX", 31, 2, 31, 1, Q("18.500018 mm")),
    Sketcher.Constraint("DistanceY", 0, 1, 0, 2, Q("1049.500891 mm")),
    Sketcher.Constraint("DistanceY", 8, 2, 8, 1, Q("30.500031 mm")),
    Sketcher.Constraint("DistanceY", 14, 2, 14, 1, Q("119.50012 mm")),
    Sketcher.Constraint("DistanceY", -1, 1, 3, 2, Q("14.501799 mm")),
    Sketcher.Constraint("DistanceX", 1, 2, 1, 1, Q("78.980095 mm")),
    Sketcher.Constraint("DistanceX", 7, 2, 7, 1, Q("96.980093 mm")),
    Sketcher.Constraint("DistanceY", 29, 2, 29, 1, Q("36.460048 mm")),
    Sketcher.Constraint("DistanceX", -1, 1, 2, 3, Q("201.373669 mm")),
    Sketcher.Constraint("DistanceX", -1, 1, 28, 3, Q("167.863638 mm")),
])
pad4 = doc.addObject("PartDesign::Pad", "Pad003")
body4.addObject(pad4)
pad4.Profile = sketch4
pad4.Length = 18

doc.recompute()
